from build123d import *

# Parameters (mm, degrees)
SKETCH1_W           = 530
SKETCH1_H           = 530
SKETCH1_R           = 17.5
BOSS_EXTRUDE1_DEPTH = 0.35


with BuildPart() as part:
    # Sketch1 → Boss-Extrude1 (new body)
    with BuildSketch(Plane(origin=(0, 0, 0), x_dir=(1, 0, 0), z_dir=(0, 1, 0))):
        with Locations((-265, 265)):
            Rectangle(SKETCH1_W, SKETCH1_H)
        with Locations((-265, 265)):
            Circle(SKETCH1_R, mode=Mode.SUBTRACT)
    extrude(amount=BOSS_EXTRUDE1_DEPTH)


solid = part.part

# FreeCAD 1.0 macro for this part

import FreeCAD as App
import Part
import Sketcher

V = App.Vector


def add_polygon(sketch, points):
    """Adds a closed chain of lines whose ends are joined by coincident constraints."""
    first, n = sketch.GeometryCount, len(points)
    for a, b in zip(points, points[1:] + points[:1]):
        sketch.addGeometry(Part.LineSegment(App.Vector(*a, 0), App.Vector(*b, 0)), False)
    for i in range(n):
        sketch.addConstraint(Sketcher.Constraint("Coincident", first + i, 2, first + (i + 1) % n, 1))

doc = App.newDocument("Part")
body = doc.addObject("PartDesign::Body", "Body")

sketch1 = doc.addObject("Sketcher::SketchObject", "Sketch")
body.addObject(sketch1)
sketch1.AttachmentSupport = (doc.XZ_Plane, [""])
sketch1.MapMode = "FlatFace"
add_polygon(sketch1, [(-530, -530), (-530, 0), (0, 0), (0, -530)])
sketch1.addGeometry(Part.Circle(V(-265, -265, 0), V(0, 0, 1), 18), False)
sketch1.addConstraint(Sketcher.Constraint("Vertical", 0))
sketch1.addConstraint(Sketcher.Constraint("Horizontal", 1))
sketch1.addConstraint(Sketcher.Constraint("Vertical", 2))
sketch1.addConstraint(Sketcher.Constraint("Horizontal", 3))
sketch1.addConstraint(Sketcher.Constraint("Coincident", 1, 2, -1, 1))
sketch1.addConstraint(Sketcher.Constraint("Equal", 3, 0))
sketch1.addConstraint(Sketcher.Constraint("Diameter", 4, 35.0))
sketch1.addConstraint(Sketcher.Constraint("DistanceX", 1, 1, 1, 2, 530.0))
sketch1.addConstraint(Sketcher.Constraint("DistanceX", 4, 3, -1, 1, 265.0))
sketch1.addConstraint(Sketcher.Constraint("DistanceY", 4, 3, -1, 1, 265.0))
pad1 = doc.addObject("PartDesign::Pad", "Pad")
body.addObject(pad1)
pad1.Profile = sketch1
pad1.Length = 0.35
pad1.Reversed = True

doc.recompute()
